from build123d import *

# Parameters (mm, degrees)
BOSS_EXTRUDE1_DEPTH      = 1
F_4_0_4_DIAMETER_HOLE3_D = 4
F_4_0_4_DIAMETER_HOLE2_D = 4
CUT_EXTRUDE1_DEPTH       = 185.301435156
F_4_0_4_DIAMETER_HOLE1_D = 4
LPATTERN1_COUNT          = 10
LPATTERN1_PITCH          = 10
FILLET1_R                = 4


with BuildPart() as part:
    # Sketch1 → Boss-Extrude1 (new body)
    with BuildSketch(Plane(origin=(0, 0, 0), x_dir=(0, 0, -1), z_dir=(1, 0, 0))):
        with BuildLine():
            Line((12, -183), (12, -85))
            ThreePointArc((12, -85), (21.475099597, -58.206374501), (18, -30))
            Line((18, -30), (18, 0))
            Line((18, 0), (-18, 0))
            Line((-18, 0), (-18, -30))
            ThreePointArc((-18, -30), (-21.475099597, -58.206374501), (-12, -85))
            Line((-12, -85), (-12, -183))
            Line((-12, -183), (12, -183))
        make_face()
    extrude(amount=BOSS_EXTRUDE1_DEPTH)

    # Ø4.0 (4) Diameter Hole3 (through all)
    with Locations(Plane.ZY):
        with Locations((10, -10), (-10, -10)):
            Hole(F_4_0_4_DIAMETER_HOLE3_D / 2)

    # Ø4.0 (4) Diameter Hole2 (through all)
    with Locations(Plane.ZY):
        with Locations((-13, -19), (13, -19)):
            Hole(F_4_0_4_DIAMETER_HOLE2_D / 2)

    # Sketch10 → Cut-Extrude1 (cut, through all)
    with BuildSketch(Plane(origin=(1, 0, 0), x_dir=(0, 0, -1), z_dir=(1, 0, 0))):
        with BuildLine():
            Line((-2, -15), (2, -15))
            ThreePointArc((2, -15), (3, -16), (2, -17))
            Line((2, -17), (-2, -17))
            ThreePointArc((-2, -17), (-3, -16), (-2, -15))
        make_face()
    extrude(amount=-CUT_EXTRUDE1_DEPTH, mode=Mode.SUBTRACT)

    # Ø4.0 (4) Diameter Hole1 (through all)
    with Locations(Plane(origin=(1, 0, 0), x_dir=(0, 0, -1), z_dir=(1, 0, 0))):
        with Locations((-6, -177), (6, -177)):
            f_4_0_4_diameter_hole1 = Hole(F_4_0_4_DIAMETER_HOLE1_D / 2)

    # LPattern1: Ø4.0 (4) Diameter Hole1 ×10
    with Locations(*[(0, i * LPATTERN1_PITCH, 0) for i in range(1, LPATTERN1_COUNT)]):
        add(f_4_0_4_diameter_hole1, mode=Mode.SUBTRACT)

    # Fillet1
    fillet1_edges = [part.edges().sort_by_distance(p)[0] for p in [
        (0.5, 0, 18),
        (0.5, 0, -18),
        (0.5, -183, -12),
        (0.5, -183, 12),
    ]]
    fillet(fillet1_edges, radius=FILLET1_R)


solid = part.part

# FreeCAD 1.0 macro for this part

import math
import FreeCAD as App
import Part
import Sketcher


def edges_at(feature, points):
    """Names of the edges that pass closest to the given points."""
    edges = feature.Shape.Edges
    near = lambda p: min(range(len(edges)), key=lambda i: edges[i].distToShape(Part.Vertex(*p))[0])
    return sorted({f"Edge{near(p) + 1}" for p in points})

doc = App.newDocument("Part")
body = doc.addObject("PartDesign::Body", "Body")

# Sketch on YZ plane
sketch1 = doc.addObject("Sketcher::SketchObject", "Sketch")
body.addObject(sketch1)
sketch1.AttachmentSupport = (doc.YZ_Plane, [""])
sketch1.MapMode = "FlatFace"
sketch1.addGeometry([
    Part.LineSegment(App.Vector(-183, -12, 0), App.Vector(-85, -12, 0)),  # 0
    Part.ArcOfCircle(Part.Circle(App.Vector(-51.482629, 40.159235, 0), App.Vector(0, 0, 1), 62), math.radians(-122.724681), math.radians(-69.726977)),  # 1
    Part.LineSegment(App.Vector(-30, -18, 0), App.Vector(0, -18, 0)),  # 2
    Part.LineSegment(App.Vector(0, -18, 0), App.Vector(0, 18, 0)),  # 3
    Part.LineSegment(App.Vector(0, 18, 0), App.Vector(-30, 18, 0)),  # 4
    Part.ArcOfCircle(Part.Circle(App.Vector(-51.482629, -40.159235, 0), App.Vector(0, 0, 1), 62), math.radians(69.726977), math.radians(122.724681)),  # 5
    Part.LineSegment(App.Vector(-85, 12, 0), App.Vector(-183, 12, 0)),  # 6
    Part.LineSegment(App.Vector(-183, 12, 0), App.Vector(-183, -12, 0)),  # 7
], False)
sketch1.addConstraint([
    Sketcher.Constraint("Coincident", 0, 2, 1, 1),
    Sketcher.Constraint("Coincident", 1, 2, 2, 1),
    Sketcher.Constraint("Coincident", 2, 2, 3, 1),
    Sketcher.Constraint("Coincident", 3, 2, 4, 1),
    Sketcher.Constraint("Coincident", 4, 2, 5, 1),
    Sketcher.Constraint("Coincident", 5, 2, 6, 1),
    Sketcher.Constraint("Coincident", 6, 2, 7, 1),
    Sketcher.Constraint("Coincident", 7, 2, 0, 1),
    Sketcher.Constraint("Horizontal", 0),
    Sketcher.Constraint("Horizontal", 2),
    Sketcher.Constraint("Vertical", 3),
    Sketcher.Constraint("Horizontal", 4),
    Sketcher.Constraint("Horizontal", 6),
    Sketcher.Constraint("Vertical", 7),
    Sketcher.Constraint("Equal", 1, 5),
    Sketcher.Constraint("Symmetric", 2, 2, 3, 2, -1, 1),
    Sketcher.Constraint("Symmetric", 1, 3, 5, 3, -1),
    Sketcher.Constraint("Vertical", 0, 2, 5, 2),
    Sketcher.Constraint("Radius", 1, 62.0),
    Sketcher.Constraint("DistanceX", 0, 1, 0, 2, 98.0),
    Sketcher.Constraint("DistanceX", 2, 1, 2, 2, 30.0),
    Sketcher.Constraint("DistanceY", 3, 1, 3, 2, 36.0),
    Sketcher.Constraint("DistanceY", 7, 2, 7, 1, 24.0),
    Sketcher.Constraint("DistanceX", 0, 2, -1, 1, 85.0),
])
pad1 = doc.addObject("PartDesign::Pad", "Pad")
body.addObject(pad1)
pad1.Profile = sketch1
pad1.Length = 1

# Sketch on YZ plane
sketch2 = doc.addObject("Sketcher::SketchObject", "Sketch001")
body.addObject(sketch2)
sketch2.AttachmentSupport = (doc.YZ_Plane, [""])
sketch2.MapMode = "FlatFace"
sketch2.addGeometry([
    Part.Circle(App.Vector(-10, 10, 0), App.Vector(0, 0, 1), 2),
    Part.Circle(App.Vector(-10, -10, 0), App.Vector(0, 0, 1), 2),
], False)
sketch2.addConstraint([
    Sketcher.Constraint("Equal", 0, 1),
    Sketcher.Constraint("Symmetric", 0, 3, 1, 3, -1),
    Sketcher.Constraint("Diameter", 0, 4.0),
    Sketcher.Constraint("DistanceX", 0, 3, -1, 1, 10.0),
    Sketcher.Constraint("DistanceY", -1, 1, 0, 3, 10.0),
])
doc.recompute()
hole = doc.addObject("PartDesign::Hole", "Hole")
body.addObject(hole)
hole.Profile = sketch2
hole.ThreadType = "None"
hole.Diameter = 4
hole.DepthType = "ThroughAll"
hole.Reversed = True

# Sketch on YZ plane
sketch3 = doc.addObject("Sketcher::SketchObject", "Sketch002")
body.addObject(sketch3)
sketch3.AttachmentSupport = (doc.YZ_Plane, [""])
sketch3.MapMode = "FlatFace"
sketch3.addGeometry([
    Part.Circle(App.Vector(-19, -13, 0), App.Vector(0, 0, 1), 2),
    Part.Circle(App.Vector(-19, 13, 0), App.Vector(0, 0, 1), 2),
], False)
sketch3.addConstraint([
    Sketcher.Constraint("Equal", 0, 1),
    Sketcher.Constraint("Symmetric", 0, 3, 1, 3, -1),
    Sketcher.Constraint("Diameter", 0, 4.0),
    Sketcher.Constraint("DistanceX", 0, 3, -1, 1, 19.0),
    Sketcher.Constraint("DistanceY", 0, 3, -1, 1, 13.0),
])
doc.recompute()
hole2 = doc.addObject("PartDesign::Hole", "Hole001")
body.addObject(hole2)
hole2.Profile = sketch3
hole2.ThreadType = "None"
hole2.Diameter = 4
hole2.DepthType = "ThroughAll"
hole2.Reversed = True

# Sketch on YZ plane
sketch4 = doc.addObject("Sketcher::SketchObject", "Sketch003")
body.addObject(sketch4)
sketch4.AttachmentSupport = (doc.YZ_Plane, [""])
sketch4.MapMode = "FlatFace"
sketch4.AttachmentOffset = App.Placement(App.Vector(0, 0, 1), App.Rotation())
sketch4.addGeometry([
    Part.LineSegment(App.Vector(-15, -2, 0), App.Vector(-15, 2, 0)),
    Part.ArcOfCircle(Part.Circle(App.Vector(-16, 2, 0), App.Vector(0, 0, 1), 1), math.radians(0), math.radians(180)),
    Part.LineSegment(App.Vector(-17, 2, 0), App.Vector(-17, -2, 0)),
    Part.ArcOfCircle(Part.Circle(App.Vector(-16, -2, 0), App.Vector(0, 0, 1), 1), math.radians(180), math.radians(360)),
], False)
sketch4.addConstraint([
    Sketcher.Constraint("Tangent", 0, 2, 1, 1),
    Sketcher.Constraint("Tangent", 1, 2, 2, 1),
    Sketcher.Constraint("Tangent", 2, 2, 3, 1),
    Sketcher.Constraint("Tangent", 3, 2, 0, 1),
    Sketcher.Constraint("Vertical", 0),
    Sketcher.Constraint("Vertical", 2),
    Sketcher.Constraint("Radius", 1, 1.0),
    Sketcher.Constraint("DistanceY", 0, 1, 0, 2, 4.0),
    Sketcher.Constraint("DistanceX", 1, 3, -1, 1, 16.0),
    Sketcher.Constraint("DistanceY", -1, 1, 1, 3, 2.0),
])
pocket1 = doc.addObject("PartDesign::Pocket", "Pocket")
body.addObject(pocket1)
pocket1.Profile = sketch4
pocket1.Type = "ThroughAll"

# Sketch on YZ plane
sketch5 = doc.addObject("Sketcher::SketchObject", "Sketch004")
body.addObject(sketch5)
sketch5.AttachmentSupport = (doc.YZ_Plane, [""])
sketch5.MapMode = "FlatFace"
sketch5.AttachmentOffset = App.Placement(App.Vector(0, 0, 1), App.Rotation())
sketch5.addGeometry([
    Part.Circle(App.Vector(-177, 6, 0), App.Vector(0, 0, 1), 2),
    Part.Circle(App.Vector(-177, -6, 0), App.Vector(0, 0, 1), 2),
], False)
sketch5.addConstraint([
    Sketcher.Constraint("Equal", 0, 1),
    Sketcher.Constraint("Symmetric", 0, 3, 1, 3, -1),
    Sketcher.Constraint("Diameter", 0, 4.0),
    Sketcher.Constraint("DistanceX", 0, 3, -1, 1, 177.0),
    Sketcher.Constraint("DistanceY", -1, 1, 0, 3, 6.0),
])
doc.recompute()
hole3 = doc.addObject("PartDesign::Hole", "Hole002")
body.addObject(hole3)
hole3.Profile = sketch5
hole3.ThreadType = "None"
hole3.Diameter = 4
hole3.DepthType = "ThroughAll"
doc.recompute()

linearpattern = doc.addObject("PartDesign::LinearPattern", "LinearPattern")
body.addObject(linearpattern)
linearpattern.Originals = [hole3]
linearpattern.Direction = (doc.Y_Axis, [""])
linearpattern.Mode = "offset"
linearpattern.Offset = 10
linearpattern.Occurrences = 10
body.Tip = linearpattern
doc.recompute()

fillet = doc.addObject("PartDesign::Fillet", "Fillet")
body.addObject(fillet)
fillet.Base = (linearpattern, edges_at(linearpattern, [
    (0.5, 0, 18),
    (0.5, 0, -18),
    (0.5, -183, -12),
    (0.5, -183, 12),
]))
fillet.Radius = 4

doc.recompute()
